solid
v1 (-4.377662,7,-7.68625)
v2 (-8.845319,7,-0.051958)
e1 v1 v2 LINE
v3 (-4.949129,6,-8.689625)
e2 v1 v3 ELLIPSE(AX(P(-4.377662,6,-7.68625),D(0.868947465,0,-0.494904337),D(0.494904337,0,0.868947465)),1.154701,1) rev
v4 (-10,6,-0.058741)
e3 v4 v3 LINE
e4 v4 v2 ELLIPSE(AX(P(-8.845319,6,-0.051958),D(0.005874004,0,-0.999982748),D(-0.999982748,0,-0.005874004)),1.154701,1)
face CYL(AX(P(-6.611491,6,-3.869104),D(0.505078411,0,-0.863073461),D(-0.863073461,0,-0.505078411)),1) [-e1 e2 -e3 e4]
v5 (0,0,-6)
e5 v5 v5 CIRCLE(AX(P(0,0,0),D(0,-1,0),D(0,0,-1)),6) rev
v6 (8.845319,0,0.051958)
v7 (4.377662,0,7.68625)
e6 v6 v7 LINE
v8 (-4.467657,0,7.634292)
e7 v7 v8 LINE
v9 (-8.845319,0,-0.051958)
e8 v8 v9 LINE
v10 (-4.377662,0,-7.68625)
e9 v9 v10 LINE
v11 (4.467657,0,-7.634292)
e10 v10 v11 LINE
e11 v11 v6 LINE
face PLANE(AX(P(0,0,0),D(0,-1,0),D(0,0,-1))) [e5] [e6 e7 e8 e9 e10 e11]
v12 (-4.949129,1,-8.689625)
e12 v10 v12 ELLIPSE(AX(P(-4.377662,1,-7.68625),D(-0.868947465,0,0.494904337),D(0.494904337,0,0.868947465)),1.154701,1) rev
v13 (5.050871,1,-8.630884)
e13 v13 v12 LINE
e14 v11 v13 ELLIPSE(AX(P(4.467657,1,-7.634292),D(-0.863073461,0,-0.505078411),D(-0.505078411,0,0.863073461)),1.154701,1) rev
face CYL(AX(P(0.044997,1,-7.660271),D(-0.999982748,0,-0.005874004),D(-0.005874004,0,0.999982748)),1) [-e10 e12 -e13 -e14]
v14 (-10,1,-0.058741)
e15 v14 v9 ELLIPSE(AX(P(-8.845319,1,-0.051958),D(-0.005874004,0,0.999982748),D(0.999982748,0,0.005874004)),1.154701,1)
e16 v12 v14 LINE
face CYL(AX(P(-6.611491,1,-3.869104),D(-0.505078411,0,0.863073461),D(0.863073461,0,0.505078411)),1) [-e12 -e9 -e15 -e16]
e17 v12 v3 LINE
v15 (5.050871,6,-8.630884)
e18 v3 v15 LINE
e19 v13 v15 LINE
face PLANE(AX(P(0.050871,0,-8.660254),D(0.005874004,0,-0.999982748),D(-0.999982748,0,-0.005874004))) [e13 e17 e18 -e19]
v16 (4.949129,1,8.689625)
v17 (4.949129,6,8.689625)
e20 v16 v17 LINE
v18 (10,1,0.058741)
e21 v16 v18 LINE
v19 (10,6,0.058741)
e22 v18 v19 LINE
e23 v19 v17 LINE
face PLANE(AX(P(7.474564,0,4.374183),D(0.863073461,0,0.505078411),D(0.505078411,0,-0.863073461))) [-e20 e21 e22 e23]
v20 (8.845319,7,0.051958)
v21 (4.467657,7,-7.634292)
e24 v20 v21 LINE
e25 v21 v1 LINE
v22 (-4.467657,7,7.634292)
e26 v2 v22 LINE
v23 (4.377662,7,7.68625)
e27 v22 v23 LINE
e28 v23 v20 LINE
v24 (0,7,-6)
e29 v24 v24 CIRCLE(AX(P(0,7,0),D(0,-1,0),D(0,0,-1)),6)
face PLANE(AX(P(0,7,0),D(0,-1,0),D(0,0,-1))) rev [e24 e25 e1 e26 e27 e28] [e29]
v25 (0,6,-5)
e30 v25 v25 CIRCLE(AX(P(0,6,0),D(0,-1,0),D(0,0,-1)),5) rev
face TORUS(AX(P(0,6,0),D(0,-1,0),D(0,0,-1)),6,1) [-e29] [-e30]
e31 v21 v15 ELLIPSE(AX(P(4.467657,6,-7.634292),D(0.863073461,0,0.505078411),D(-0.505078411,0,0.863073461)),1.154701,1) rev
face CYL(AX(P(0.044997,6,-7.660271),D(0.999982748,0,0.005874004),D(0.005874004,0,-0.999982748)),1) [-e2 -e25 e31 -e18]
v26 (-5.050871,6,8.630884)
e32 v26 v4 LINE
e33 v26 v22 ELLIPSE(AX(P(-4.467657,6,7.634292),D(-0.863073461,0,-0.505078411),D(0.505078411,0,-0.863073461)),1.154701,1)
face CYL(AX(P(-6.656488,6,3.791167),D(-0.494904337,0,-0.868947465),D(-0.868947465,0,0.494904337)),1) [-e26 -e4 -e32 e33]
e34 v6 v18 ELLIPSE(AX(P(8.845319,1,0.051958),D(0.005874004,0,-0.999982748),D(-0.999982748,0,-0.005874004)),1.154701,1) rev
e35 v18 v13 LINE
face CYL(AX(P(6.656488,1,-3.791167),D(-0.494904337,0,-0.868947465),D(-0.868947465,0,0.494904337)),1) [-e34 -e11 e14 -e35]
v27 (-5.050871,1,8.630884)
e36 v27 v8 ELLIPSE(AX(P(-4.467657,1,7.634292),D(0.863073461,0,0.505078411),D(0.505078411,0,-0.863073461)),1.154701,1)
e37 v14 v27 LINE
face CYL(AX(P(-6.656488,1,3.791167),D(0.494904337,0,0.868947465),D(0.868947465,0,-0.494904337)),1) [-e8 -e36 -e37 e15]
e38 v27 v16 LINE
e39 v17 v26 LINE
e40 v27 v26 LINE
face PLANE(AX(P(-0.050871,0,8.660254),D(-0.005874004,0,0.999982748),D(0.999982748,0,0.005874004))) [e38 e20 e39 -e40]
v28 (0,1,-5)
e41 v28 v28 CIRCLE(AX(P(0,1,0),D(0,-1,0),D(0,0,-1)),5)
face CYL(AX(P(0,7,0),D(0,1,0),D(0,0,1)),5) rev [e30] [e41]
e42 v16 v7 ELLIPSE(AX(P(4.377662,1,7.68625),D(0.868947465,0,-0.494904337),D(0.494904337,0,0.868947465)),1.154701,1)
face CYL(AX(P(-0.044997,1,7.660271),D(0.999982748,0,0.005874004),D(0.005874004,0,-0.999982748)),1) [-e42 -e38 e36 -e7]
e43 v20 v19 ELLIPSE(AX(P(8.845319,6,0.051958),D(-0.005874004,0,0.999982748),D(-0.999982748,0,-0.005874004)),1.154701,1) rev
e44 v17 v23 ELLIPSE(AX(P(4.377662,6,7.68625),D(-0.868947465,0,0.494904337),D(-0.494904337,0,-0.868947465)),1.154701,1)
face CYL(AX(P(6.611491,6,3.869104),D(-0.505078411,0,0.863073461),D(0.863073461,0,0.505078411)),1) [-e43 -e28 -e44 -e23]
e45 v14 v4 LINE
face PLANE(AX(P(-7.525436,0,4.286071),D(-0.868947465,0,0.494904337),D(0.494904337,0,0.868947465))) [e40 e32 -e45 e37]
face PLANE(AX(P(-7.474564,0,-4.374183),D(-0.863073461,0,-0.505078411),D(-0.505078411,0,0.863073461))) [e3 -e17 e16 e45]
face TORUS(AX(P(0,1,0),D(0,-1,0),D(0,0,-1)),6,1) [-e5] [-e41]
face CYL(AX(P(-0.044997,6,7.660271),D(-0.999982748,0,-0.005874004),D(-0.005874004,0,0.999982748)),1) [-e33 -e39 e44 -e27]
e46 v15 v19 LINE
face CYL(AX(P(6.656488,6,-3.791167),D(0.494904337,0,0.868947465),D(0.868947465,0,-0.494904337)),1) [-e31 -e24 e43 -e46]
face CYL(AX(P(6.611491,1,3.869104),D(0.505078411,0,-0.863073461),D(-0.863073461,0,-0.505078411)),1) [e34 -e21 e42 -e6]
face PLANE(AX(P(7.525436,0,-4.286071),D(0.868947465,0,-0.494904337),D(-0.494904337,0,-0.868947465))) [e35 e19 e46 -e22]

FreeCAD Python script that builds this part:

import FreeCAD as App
import Part
import Sketcher
Q = App.Units.Quantity


def edges_at(feature, points):
    """Names of the edges that pass closest to the given points."""
    edges = feature.Shape.Edges
    near = lambda p: min(range(len(edges)), key=lambda i: edges[i].distToShape(Part.Vertex(*p))[0])
    return sorted({f"Edge{near(p) + 1}" for p in points})


def add_polygon(sketch, points):
    """Adds a closed chain of lines whose ends are joined by coincident constraints."""
    first, n = sketch.GeometryCount, len(points)
    for a, b in zip(points, points[1:] + points[:1]):
        sketch.addGeometry(Part.LineSegment(App.Vector(*a, 0), App.Vector(*b, 0)), False)
    for i in range(n):
        sketch.addConstraint(Sketcher.Constraint("Coincident", first + i, 2, first + (i + 1) % n, 1))

doc = App.newDocument("Part")
body = doc.addObject("PartDesign::Body", "Body")

# Sketch on XZ plane
sketch1 = body.newObject("Sketcher::SketchObject", "Sketch")
sketch1.AttachmentSupport = (doc.getObject("XZ_Plane"), [""])
sketch1.MapMode = "FlatFace"
add_polygon(sketch1, [(-10, -10), (-10, 10), (10, 10), (10, -10)])  # lines 0-3
sketch1.addConstraint(Sketcher.Constraint("Vertical", 0))
sketch1.addConstraint(Sketcher.Constraint("Horizontal", 1))
sketch1.addConstraint(Sketcher.Constraint("Vertical", 2))
sketch1.addConstraint(Sketcher.Constraint("Horizontal", 3))
sketch1.addConstraint(Sketcher.Constraint("Symmetric", 0, 2, 2, 2, -1, 1))
sketch1.addConstraint(Sketcher.Constraint("Equal", 3, 0))
sketch1.addConstraint(Sketcher.Constraint("DistanceX", 1, 1, 1, 2, Q("20 mm")))
pad1 = body.newObject("PartDesign::Pad", "Pad")
pad1.Profile = sketch1
pad1.Length = 7
pad1.Reversed = True

# Sketch on XZ plane
sketch2 = body.newObject("Sketcher::SketchObject", "Sketch001")
sketch2.AttachmentSupport = (doc.getObject("XZ_Plane"), [""])
sketch2.MapMode = "FlatFace"
sketch2.AttachmentOffset = App.Placement(App.Vector(0, 0, -7), App.Rotation())
sketch2.addGeometry(Part.Circle(App.Vector(0, 0, 0), App.Vector(0, 0, 1), 5), False)
sketch2.addConstraint(Sketcher.Constraint("Coincident", 0, 3, -1, 1))
sketch2.addConstraint(Sketcher.Constraint("Diameter", 0, Q("10 mm")))
doc.recompute()
hole = body.newObject("PartDesign::Hole", "Hole")
hole.Profile = sketch2
hole.ThreadType = "None"
hole.Diameter = 10
hole.DepthType = "ThroughAll"
hole.Reversed = True

# Sketch on XZ plane
sketch3 = body.newObject("Sketcher::SketchObject", "Sketch002")
sketch3.AttachmentSupport = (doc.getObject("XZ_Plane"), [""])
sketch3.MapMode = "FlatFace"
sketch3.AttachmentOffset = App.Placement(App.Vector(0, 0, -7), App.Rotation())
add_polygon(sketch3, [(-10, -10), (-10, 0), (-5, -9), (5, -9), (10, 0), (10, -10)])  # lines 0-5
add_polygon(sketch3, [(5, 9), (-5, 9), (-10, 0), (-10, 10), (10, 10), (10, 0)])  # lines 6-11
sketch3.addConstraint(Sketcher.Constraint("Vertical", 0))
sketch3.addConstraint(Sketcher.Constraint("Vertical", 4))
sketch3.addConstraint(Sketcher.Constraint("Horizontal", 5))
sketch3.addConstraint(Sketcher.Constraint("Vertical", 8))
sketch3.addConstraint(Sketcher.Constraint("Horizontal", 9))
sketch3.addConstraint(Sketcher.Constraint("Vertical", 10))
sketch3.addConstraint(Sketcher.Constraint("Coincident", 7, 2, 0, 2))
sketch3.addConstraint(Sketcher.Constraint("Coincident", 10, 2, 3, 2))
sketch3.addConstraint(Sketcher.Constraint("Symmetric", 0, 2, 3, 2, -1, 1))
sketch3.addConstraint(Sketcher.Constraint("Symmetric", 2, 2, 6, 2, -1, 1))
sketch3.addConstraint(Sketcher.Constraint("Symmetric", 1, 2, 11, 2, -1, 1))
sketch3.addConstraint(Sketcher.Constraint("Equal", 4, 8))
sketch3.addConstraint(Sketcher.Constraint("Equal", 1, 2))
sketch3.addConstraint(Sketcher.Constraint("Equal", 2, 3))
sketch3.addConstraint(Sketcher.Constraint("DistanceX", 5, 2, 5, 1, Q("20 mm")))
sketch3.addConstraint(Sketcher.Constraint("DistanceY", 4, 2, -1, 1, Q("10 mm")))
sketch3.addConstraint(Sketcher.Constraint("DistanceX", 1, 2, 2, 2, Q("10 mm")))
sketch3.addConstraint(Sketcher.Constraint("DistanceY", 0, 1, 0, 2, Q("9.941259 mm")))
sketch3.addConstraint(Sketcher.Constraint("DistanceX", 1, 2, -1, 1, Q("4.949129 mm")))
pocket1 = body.newObject("PartDesign::Pocket", "Pocket")
pocket1.Profile = sketch3
pocket1.Type = "ThroughAll"
pocket1.Reversed = True
doc.recompute()

fillet = body.newObject("PartDesign::Fillet", "Fillet")
fillet.Base = (pocket1, edges_at(pocket1, [
    (5, 7, 0),
    (5, 0, 0),
    (-7.475, 7, -4.374),
    (7.525, 7, -4.286),
    (0.051, 7, -8.66),
    (-7.475, 0, -4.374),
    (7.525, 0, -4.286),
    (0.051, 0, -8.66),
    (-7.525, 7, 4.286),
    (-0.051, 7, 8.66),
    (7.475, 7, 4.374),
    (-7.525, 0, 4.286),
    (-0.051, 0, 8.66),
    (7.475, 0, 4.374),
]))
fillet.Radius = 1

doc.recompute()
